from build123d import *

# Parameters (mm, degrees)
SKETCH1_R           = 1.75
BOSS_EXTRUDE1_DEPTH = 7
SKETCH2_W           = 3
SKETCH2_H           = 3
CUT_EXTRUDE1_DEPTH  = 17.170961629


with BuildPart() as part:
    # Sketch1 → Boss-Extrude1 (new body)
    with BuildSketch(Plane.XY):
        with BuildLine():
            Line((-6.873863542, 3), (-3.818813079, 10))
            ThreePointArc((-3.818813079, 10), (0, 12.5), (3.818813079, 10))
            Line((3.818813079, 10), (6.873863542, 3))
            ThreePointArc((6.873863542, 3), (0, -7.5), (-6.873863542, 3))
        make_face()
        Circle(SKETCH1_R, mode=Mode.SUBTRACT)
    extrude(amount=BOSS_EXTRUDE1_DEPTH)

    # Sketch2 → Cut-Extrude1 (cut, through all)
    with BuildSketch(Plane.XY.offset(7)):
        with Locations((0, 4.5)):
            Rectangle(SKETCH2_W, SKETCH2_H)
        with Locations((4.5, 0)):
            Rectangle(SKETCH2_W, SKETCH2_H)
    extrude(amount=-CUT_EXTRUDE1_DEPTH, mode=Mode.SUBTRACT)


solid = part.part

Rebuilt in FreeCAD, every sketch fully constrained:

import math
import FreeCAD as App
import Part
import Sketcher

doc = App.newDocument("Part")
params = doc.addObject("Spreadsheet::Sheet", "Params")
for row, (alias, value) in enumerate([
    ("sketch1_diameter", "3.5 mm"),
    ("sketch1_radius", "7.5 mm"),
    ("pad1_length", "7 mm"),
    ("sketch2_width", "3 mm"),
], start=1):
    params.set(f"A{row}", alias)
    params.set(f"B{row}", "=" + value)
    params.setAlias(f"B{row}", alias)

body = doc.addObject("PartDesign::Body", "Body")

sketch1 = body.newObject("Sketcher::SketchObject", "Sketch")
sketch1.AttachmentSupport = (doc.getObject("XY_Plane"), [""])
sketch1.MapMode = "FlatFace"
sketch1.addGeometry([
    Part.LineSegment(App.Vector(-3.818813, 10, 0), App.Vector(-6.873864, 3, 0)),
    Part.ArcOfCircle(Part.Circle(App.Vector(0, 0, 0), App.Vector(0, 0, 1), 7.5), math.radians(156.421822), math.radians(383.578178)),
    Part.LineSegment(App.Vector(6.873864, 3, 0), App.Vector(3.818813, 10, 0)),
    Part.ArcOfCircle(Part.Circle(App.Vector(0, 8.333333, 0), App.Vector(0, 0, 1), 4.166667), math.radians(23.578178), math.radians(156.421822)),
    Part.Circle(App.Vector(0, 0, 0), App.Vector(0, 0, 1), 1.75),
], False)
sketch1.addConstraint([
    Sketcher.Constraint("Tangent", 0, 2, 1, 1),
    Sketcher.Constraint("Tangent", 1, 2, 2, 1),
    Sketcher.Constraint("Tangent", 2, 2, 3, 1),
    Sketcher.Constraint("Tangent", 3, 2, 0, 1),
    Sketcher.Constraint("Coincident", 1, 3, -1, 1),
    Sketcher.Constraint("Coincident", 4, 3, -1, 1),
    Sketcher.Constraint("PointOnObject", 3, 3, -2),
    Sketcher.Constraint("Diameter", 4, 3.5),
    Sketcher.Constraint("Radius", 1, 7.5),
    Sketcher.Constraint("DistanceY", -1, 1, 0, 2, 3.0),
    Sketcher.Constraint("DistanceY", -1, 1, 2, 2, 10.0),
])
sketch1.setExpression("Constraints[7]", "Params.sketch1_diameter")
sketch1.setExpression("Constraints[8]", "Params.sketch1_radius")
pad1 = body.newObject("PartDesign::Pad", "Pad")
pad1.Profile = sketch1
pad1.setExpression("Length", "Params.pad1_length")

sketch2 = body.newObject("Sketcher::SketchObject", "Sketch001")
sketch2.AttachmentSupport = (doc.getObject("XY_Plane"), [""])
sketch2.MapMode = "FlatFace"
sketch2.AttachmentOffset = App.Placement(App.Vector(0, 0, 7), App.Rotation())
sketch2.addGeometry([
    Part.LineSegment(App.Vector(-1.5, 6, 0), App.Vector(-1.5, 3, 0)),
    Part.LineSegment(App.Vector(-1.5, 3, 0), App.Vector(1.5, 3, 0)),
    Part.LineSegment(App.Vector(1.5, 3, 0), App.Vector(1.5, 6, 0)),
    Part.LineSegment(App.Vector(1.5, 6, 0), App.Vector(-1.5, 6, 0)),
    Part.LineSegment(App.Vector(3, 1.5, 0), App.Vector(3, -1.5, 0)),
    Part.LineSegment(App.Vector(3, -1.5, 0), App.Vector(6, -1.5, 0)),
    Part.LineSegment(App.Vector(6, -1.5, 0), App.Vector(6, 1.5, 0)),
    Part.LineSegment(App.Vector(6, 1.5, 0), App.Vector(3, 1.5, 0)),
], False)
sketch2.addConstraint([
    Sketcher.Constraint("Coincident", 0, 2, 1, 1),
    Sketcher.Constraint("Coincident", 1, 2, 2, 1),
    Sketcher.Constraint("Coincident", 2, 2, 3, 1),
    Sketcher.Constraint("Coincident", 3, 2, 0, 1),
    Sketcher.Constraint("Coincident", 4, 2, 5, 1),
    Sketcher.Constraint("Coincident", 5, 2, 6, 1),
    Sketcher.Constraint("Coincident", 6, 2, 7, 1),
    Sketcher.Constraint("Coincident", 7, 2, 4, 1),
    Sketcher.Constraint("Vertical", 0),
    Sketcher.Constraint("Horizontal", 1),
    Sketcher.Constraint("Vertical", 2),
    Sketcher.Constraint("Horizontal", 3),
    Sketcher.Constraint("Vertical", 4),
    Sketcher.Constraint("Horizontal", 5),
    Sketcher.Constraint("Vertical", 6),
    Sketcher.Constraint("Horizontal", 7),
    Sketcher.Constraint("Equal", 3, 5),
    Sketcher.Constraint("Equal", 7, 0),
    Sketcher.Constraint("Equal", 2, 4),
    Sketcher.Constraint("DistanceX", 1, 1, 1, 2, 3.0),
    Sketcher.Constraint("DistanceY", -1, 1, 0, 2, 3.0),
    Sketcher.Constraint("DistanceX", -1, 1, 4, 2, 3.0),
    Sketcher.Constraint("DistanceX", 0, 2, -1, 1, 1.5),
    Sketcher.Constraint("DistanceY", 4, 2, -1, 1, 1.5),
])
sketch2.setExpression("Constraints[19]", "Params.sketch2_width")
pocket1 = body.newObject("PartDesign::Pocket", "Pocket")
pocket1.Profile = sketch2
pocket1.Type = "ThroughAll"

doc.recompute()
